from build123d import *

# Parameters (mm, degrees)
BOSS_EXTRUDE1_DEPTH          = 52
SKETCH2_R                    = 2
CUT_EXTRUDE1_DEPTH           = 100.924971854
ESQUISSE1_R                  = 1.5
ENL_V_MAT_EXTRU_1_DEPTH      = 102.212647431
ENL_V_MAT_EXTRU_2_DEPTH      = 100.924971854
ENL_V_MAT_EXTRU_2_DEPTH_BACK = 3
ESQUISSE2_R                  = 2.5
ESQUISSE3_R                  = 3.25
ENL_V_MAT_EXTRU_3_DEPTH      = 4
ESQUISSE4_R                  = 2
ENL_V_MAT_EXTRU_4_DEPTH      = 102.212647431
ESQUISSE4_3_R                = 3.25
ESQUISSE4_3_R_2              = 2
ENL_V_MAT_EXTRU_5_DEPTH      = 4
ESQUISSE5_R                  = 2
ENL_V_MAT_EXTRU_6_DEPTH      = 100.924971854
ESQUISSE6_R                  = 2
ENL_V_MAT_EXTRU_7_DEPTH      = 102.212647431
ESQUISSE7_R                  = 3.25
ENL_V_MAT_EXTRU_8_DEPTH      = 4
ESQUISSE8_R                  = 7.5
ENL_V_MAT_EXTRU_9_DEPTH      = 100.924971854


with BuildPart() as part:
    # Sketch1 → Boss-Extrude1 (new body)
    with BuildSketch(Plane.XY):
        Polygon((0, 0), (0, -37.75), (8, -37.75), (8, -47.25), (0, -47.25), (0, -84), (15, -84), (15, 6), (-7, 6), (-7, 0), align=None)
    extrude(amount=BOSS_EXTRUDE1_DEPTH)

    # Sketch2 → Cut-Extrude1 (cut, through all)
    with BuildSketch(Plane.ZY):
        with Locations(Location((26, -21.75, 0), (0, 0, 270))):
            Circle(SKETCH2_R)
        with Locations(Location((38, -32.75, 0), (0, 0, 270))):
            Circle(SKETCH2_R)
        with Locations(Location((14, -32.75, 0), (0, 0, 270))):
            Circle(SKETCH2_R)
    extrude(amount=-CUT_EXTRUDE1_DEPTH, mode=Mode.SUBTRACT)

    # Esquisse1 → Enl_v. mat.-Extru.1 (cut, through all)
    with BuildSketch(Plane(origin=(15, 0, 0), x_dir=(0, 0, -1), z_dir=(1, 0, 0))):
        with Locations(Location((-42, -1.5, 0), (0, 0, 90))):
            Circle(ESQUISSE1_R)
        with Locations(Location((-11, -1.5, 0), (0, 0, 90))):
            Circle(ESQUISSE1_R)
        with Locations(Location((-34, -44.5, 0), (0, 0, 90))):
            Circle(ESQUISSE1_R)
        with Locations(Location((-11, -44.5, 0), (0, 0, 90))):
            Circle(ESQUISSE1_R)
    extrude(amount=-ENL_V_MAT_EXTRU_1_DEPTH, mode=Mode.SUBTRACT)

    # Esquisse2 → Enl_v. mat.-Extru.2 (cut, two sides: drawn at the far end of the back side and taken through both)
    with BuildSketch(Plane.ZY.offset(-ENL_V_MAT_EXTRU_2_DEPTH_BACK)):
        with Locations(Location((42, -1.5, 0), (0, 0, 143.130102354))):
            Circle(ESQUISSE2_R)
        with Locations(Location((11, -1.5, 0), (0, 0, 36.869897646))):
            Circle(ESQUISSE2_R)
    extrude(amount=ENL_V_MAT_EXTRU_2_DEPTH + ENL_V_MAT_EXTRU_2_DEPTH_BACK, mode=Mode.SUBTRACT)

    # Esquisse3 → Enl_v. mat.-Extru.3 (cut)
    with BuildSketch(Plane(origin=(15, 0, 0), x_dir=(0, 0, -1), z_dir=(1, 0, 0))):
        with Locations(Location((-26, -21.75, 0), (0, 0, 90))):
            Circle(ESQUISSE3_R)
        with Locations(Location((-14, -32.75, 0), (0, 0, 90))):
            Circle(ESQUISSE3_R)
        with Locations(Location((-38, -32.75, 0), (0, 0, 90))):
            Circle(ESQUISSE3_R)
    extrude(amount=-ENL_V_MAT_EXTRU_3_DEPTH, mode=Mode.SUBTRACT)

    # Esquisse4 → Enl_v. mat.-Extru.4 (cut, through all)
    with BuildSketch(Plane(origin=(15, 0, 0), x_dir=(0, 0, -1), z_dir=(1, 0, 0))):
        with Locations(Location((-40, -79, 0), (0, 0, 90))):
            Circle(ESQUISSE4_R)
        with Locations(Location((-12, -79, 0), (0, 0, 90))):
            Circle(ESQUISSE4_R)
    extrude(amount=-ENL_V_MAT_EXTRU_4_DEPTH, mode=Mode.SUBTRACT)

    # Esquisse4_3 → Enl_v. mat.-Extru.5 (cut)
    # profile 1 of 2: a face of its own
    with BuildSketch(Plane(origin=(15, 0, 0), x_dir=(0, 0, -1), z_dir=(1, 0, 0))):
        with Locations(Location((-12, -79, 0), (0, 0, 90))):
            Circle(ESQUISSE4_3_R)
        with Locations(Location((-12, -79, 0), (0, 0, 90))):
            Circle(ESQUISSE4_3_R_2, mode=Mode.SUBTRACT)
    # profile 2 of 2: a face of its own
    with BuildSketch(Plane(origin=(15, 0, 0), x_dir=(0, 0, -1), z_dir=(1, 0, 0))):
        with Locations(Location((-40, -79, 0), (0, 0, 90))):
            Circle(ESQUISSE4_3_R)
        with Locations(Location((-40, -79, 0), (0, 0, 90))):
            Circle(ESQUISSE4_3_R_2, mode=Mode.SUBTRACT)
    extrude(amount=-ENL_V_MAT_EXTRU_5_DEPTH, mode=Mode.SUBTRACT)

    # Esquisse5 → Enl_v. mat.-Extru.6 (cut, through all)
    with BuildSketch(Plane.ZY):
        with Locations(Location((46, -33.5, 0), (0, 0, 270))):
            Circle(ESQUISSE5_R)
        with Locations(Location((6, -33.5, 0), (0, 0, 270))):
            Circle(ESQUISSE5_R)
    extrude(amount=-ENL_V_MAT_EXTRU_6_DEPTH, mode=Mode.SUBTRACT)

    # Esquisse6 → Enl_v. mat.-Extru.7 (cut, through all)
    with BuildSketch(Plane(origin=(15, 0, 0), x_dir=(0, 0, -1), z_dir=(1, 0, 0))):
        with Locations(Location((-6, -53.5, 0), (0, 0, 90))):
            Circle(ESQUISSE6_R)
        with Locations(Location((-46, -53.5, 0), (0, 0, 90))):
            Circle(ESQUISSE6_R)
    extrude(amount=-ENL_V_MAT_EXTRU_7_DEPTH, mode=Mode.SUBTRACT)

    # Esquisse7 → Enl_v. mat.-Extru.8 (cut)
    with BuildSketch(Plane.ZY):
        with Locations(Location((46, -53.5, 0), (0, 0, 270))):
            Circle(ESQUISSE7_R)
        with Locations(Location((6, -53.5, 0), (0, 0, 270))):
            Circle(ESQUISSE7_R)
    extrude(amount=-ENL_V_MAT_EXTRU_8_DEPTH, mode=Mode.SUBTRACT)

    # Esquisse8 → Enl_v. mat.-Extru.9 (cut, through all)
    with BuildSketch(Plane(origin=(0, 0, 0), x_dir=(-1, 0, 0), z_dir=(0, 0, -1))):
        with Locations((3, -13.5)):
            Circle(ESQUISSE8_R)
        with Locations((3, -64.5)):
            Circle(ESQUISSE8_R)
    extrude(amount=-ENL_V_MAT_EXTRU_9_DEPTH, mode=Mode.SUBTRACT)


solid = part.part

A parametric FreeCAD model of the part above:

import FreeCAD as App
import Part
import Sketcher
Q = App.Units.Quantity


def add_polygon(sketch, points):
    """Adds a closed chain of lines whose ends are joined by coincident constraints."""
    first, n = sketch.GeometryCount, len(points)
    for a, b in zip(points, points[1:] + points[:1]):
        sketch.addGeometry(Part.LineSegment(App.Vector(*a, 0), App.Vector(*b, 0)), False)
    for i in range(n):
        sketch.addConstraint(Sketcher.Constraint("Coincident", first + i, 2, first + (i + 1) % n, 1))

doc = App.newDocument("Part")
body = doc.addObject("PartDesign::Body", "Body")

sketch1 = body.newObject("Sketcher::SketchObject", "Sketch")
sketch1.AttachmentSupport = (doc.getObject("XY_Plane"), [""])
sketch1.MapMode = "FlatFace"
add_polygon(sketch1, [(0, 0), (0, -38), (8, -38), (8, -47), (0, -47), (0, -84), (15, -84), (15, 6), (-7, 6), (-7, 0)])
sketch1.addConstraint(Sketcher.Constraint("Vertical", 0))
sketch1.addConstraint(Sketcher.Constraint("Horizontal", 1))
sketch1.addConstraint(Sketcher.Constraint("Vertical", 2))
sketch1.addConstraint(Sketcher.Constraint("Horizontal", 3))
sketch1.addConstraint(Sketcher.Constraint("Vertical", 4))
sketch1.addConstraint(Sketcher.Constraint("Horizontal", 5))
sketch1.addConstraint(Sketcher.Constraint("Vertical", 6))
sketch1.addConstraint(Sketcher.Constraint("Horizontal", 7))
sketch1.addConstraint(Sketcher.Constraint("Vertical", 8))
sketch1.addConstraint(Sketcher.Constraint("Horizontal", 9))
sketch1.addConstraint(Sketcher.Constraint("Coincident", 9, 2, -1, 1))
sketch1.addConstraint(Sketcher.Constraint("PointOnObject", 3, 2, -2))
sketch1.addConstraint(Sketcher.Constraint("DistanceX", 1, 1, 1, 2, Q("8 mm")))
sketch1.addConstraint(Sketcher.Constraint("DistanceX", 5, 1, 5, 2, Q("15 mm")))
sketch1.addConstraint(Sketcher.Constraint("DistanceX", 7, 2, 7, 1, Q("22 mm")))
sketch1.addConstraint(Sketcher.Constraint("DistanceY", 6, 1, 6, 2, Q("90 mm")))
sketch1.addConstraint(Sketcher.Constraint("DistanceY", 8, 2, 8, 1, Q("6 mm")))
sketch1.addConstraint(Sketcher.Constraint("DistanceY", 2, 2, 2, 1, Q("9.5 mm")))
sketch1.addConstraint(Sketcher.Constraint("DistanceY", 0, 2, 0, 1, Q("37.75 mm")))
pad1 = body.newObject("PartDesign::Pad", "Pad")
pad1.Profile = sketch1
pad1.Length = 52

sketch2 = body.newObject("Sketcher::SketchObject", "Sketch001")
sketch2.AttachmentSupport = (doc.getObject("YZ_Plane"), [""])
sketch2.MapMode = "FlatFace"
sketch2.addGeometry(Part.Circle(App.Vector(-21.8, 26, 0), App.Vector(0, 0, 1), 2), False)
sketch2.addGeometry(Part.Circle(App.Vector(-32.8, 38, 0), App.Vector(0, 0, 1), 2), False)
sketch2.addGeometry(Part.Circle(App.Vector(-32.8, 14, 0), App.Vector(0, 0, 1), 2), False)
sketch2.addConstraint(Sketcher.Constraint("Equal", 0, 1))
sketch2.addConstraint(Sketcher.Constraint("Equal", 1, 2))
sketch2.addConstraint(Sketcher.Constraint("Vertical", 1, 3, 2, 3))
sketch2.addConstraint(Sketcher.Constraint("Diameter", 0, Q("4 mm")))
sketch2.addConstraint(Sketcher.Constraint("DistanceY", -1, 1, 0, 3, Q("26 mm")))
sketch2.addConstraint(Sketcher.Constraint("DistanceY", -1, 1, 1, 3, Q("38 mm")))
sketch2.addConstraint(Sketcher.Constraint("DistanceY", -1, 1, 2, 3, Q("14 mm")))
sketch2.addConstraint(Sketcher.Constraint("DistanceX", 1, 3, 0, 3, Q("11 mm")))
sketch2.addConstraint(Sketcher.Constraint("DistanceX", 0, 3, -1, 1, Q("21.75 mm")))
pocket1 = body.newObject("PartDesign::Pocket", "Pocket")
pocket1.Profile = sketch2
pocket1.Type = "ThroughAll"
pocket1.Reversed = True

sketch3 = body.newObject("Sketcher::SketchObject", "Sketch002")
sketch3.AttachmentSupport = (doc.getObject("YZ_Plane"), [""])
sketch3.MapMode = "FlatFace"
sketch3.AttachmentOffset = App.Placement(App.Vector(0, 0, 15), App.Rotation())
sketch3.addGeometry(Part.Circle(App.Vector(-1.5, 42, 0), App.Vector(0, 0, 1), 1.5), False)
sketch3.addGeometry(Part.Circle(App.Vector(-1.5, 11, 0), App.Vector(0, 0, 1), 1.5), False)
sketch3.addGeometry(Part.Circle(App.Vector(-44.5, 34, 0), App.Vector(0, 0, 1), 1.5), False)
sketch3.addGeometry(Part.Circle(App.Vector(-44.5, 11, 0), App.Vector(0, 0, 1), 1.5), False)
sketch3.addConstraint(Sketcher.Constraint("Equal", 0, 1))
sketch3.addConstraint(Sketcher.Constraint("Equal", 1, 2))
sketch3.addConstraint(Sketcher.Constraint("Equal", 2, 3))
sketch3.addConstraint(Sketcher.Constraint("Horizontal", 1, 3, 3, 3))
sketch3.addConstraint(Sketcher.Constraint("Vertical", 0, 3, 1, 3))
sketch3.addConstraint(Sketcher.Constraint("Vertical", 2, 3, 3, 3))
sketch3.addConstraint(Sketcher.Constraint("Diameter", 0, Q("3 mm")))
sketch3.addConstraint(Sketcher.Constraint("DistanceY", -1, 1, 0, 3, Q("42 mm")))
sketch3.addConstraint(Sketcher.Constraint("DistanceY", -1, 1, 1, 3, Q("11 mm")))
sketch3.addConstraint(Sketcher.Constraint("DistanceY", -1, 1, 2, 3, Q("34 mm")))
sketch3.addConstraint(Sketcher.Constraint("DistanceX", 2, 3, 0, 3, Q("43 mm")))
sketch3.addConstraint(Sketcher.Constraint("DistanceX", 0, 3, -1, 1, Q("1.5 mm")))
pocket2 = body.newObject("PartDesign::Pocket", "Pocket001")
pocket2.Profile = sketch3
pocket2.Type = "ThroughAll"

sketch4 = body.newObject("Sketcher::SketchObject", "Sketch003")
sketch4.AttachmentSupport = (doc.getObject("YZ_Plane"), [""])
sketch4.MapMode = "FlatFace"
sketch4.addGeometry(Part.Circle(App.Vector(-1.5, 42, 0), App.Vector(0, 0, 1), 2.5), False)
sketch4.addGeometry(Part.Circle(App.Vector(-1.5, 11, 0), App.Vector(0, 0, 1), 2.5), False)
sketch4.addConstraint(Sketcher.Constraint("Equal", 0, 1))
sketch4.addConstraint(Sketcher.Constraint("Vertical", 0, 3, 1, 3))
sketch4.addConstraint(Sketcher.Constraint("Diameter", 0, Q("5 mm")))
sketch4.addConstraint(Sketcher.Constraint("DistanceY", -1, 1, 0, 3, Q("42 mm")))
sketch4.addConstraint(Sketcher.Constraint("DistanceY", -1, 1, 1, 3, Q("11 mm")))
sketch4.addConstraint(Sketcher.Constraint("DistanceX", 0, 3, -1, 1, Q("1.5 mm")))
pocket3 = body.newObject("PartDesign::Pocket", "Pocket002")
pocket3.Profile = sketch4
pocket3.Type = "TwoLengths"
pocket3.Length = 100.924972
pocket3.Length2 = 3

sketch5 = body.newObject("Sketcher::SketchObject", "Sketch004")
sketch5.AttachmentSupport = (doc.getObject("YZ_Plane"), [""])
sketch5.MapMode = "FlatFace"
sketch5.AttachmentOffset = App.Placement(App.Vector(0, 0, 15), App.Rotation())
sketch5.addGeometry(Part.Circle(App.Vector(-21.8, 26, 0), App.Vector(0, 0, 1), 3.2), False)
sketch5.addGeometry(Part.Circle(App.Vector(-32.8, 14, 0), App.Vector(0, 0, 1), 3.2), False)
sketch5.addGeometry(Part.Circle(App.Vector(-32.8, 38, 0), App.Vector(0, 0, 1), 3.2), False)
sketch5.addConstraint(Sketcher.Constraint("Equal", 0, 1))
sketch5.addConstraint(Sketcher.Constraint("Equal", 1, 2))
sketch5.addConstraint(Sketcher.Constraint("Vertical", 1, 3, 2, 3))
sketch5.addConstraint(Sketcher.Constraint("Diameter", 0, Q("6.5 mm")))
sketch5.addConstraint(Sketcher.Constraint("DistanceY", -1, 1, 0, 3, Q("26 mm")))
sketch5.addConstraint(Sketcher.Constraint("DistanceY", -1, 1, 1, 3, Q("14 mm")))
sketch5.addConstraint(Sketcher.Constraint("DistanceY", -1, 1, 2, 3, Q("38 mm")))
sketch5.addConstraint(Sketcher.Constraint("DistanceX", 1, 3, 0, 3, Q("11 mm")))
sketch5.addConstraint(Sketcher.Constraint("DistanceX", 0, 3, -1, 1, Q("21.75 mm")))
pocket4 = body.newObject("PartDesign::Pocket", "Pocket003")
pocket4.Profile = sketch5
pocket4.Length = 4

sketch6 = body.newObject("Sketcher::SketchObject", "Sketch005")
sketch6.AttachmentSupport = (doc.getObject("YZ_Plane"), [""])
sketch6.MapMode = "FlatFace"
sketch6.AttachmentOffset = App.Placement(App.Vector(0, 0, 15), App.Rotation())
sketch6.addGeometry(Part.Circle(App.Vector(-79, 40, 0), App.Vector(0, 0, 1), 2), False)
sketch6.addGeometry(Part.Circle(App.Vector(-79, 12, 0), App.Vector(0, 0, 1), 2), False)
sketch6.addConstraint(Sketcher.Constraint("Equal", 0, 1))
sketch6.addConstraint(Sketcher.Constraint("Vertical", 0, 3, 1, 3))
sketch6.addConstraint(Sketcher.Constraint("Diameter", 0, Q("4 mm")))
sketch6.addConstraint(Sketcher.Constraint("DistanceX", 0, 3, -1, 1, Q("79 mm")))
sketch6.addConstraint(Sketcher.Constraint("DistanceY", -1, 1, 0, 3, Q("40 mm")))
sketch6.addConstraint(Sketcher.Constraint("DistanceY", -1, 1, 1, 3, Q("12 mm")))
pocket5 = body.newObject("PartDesign::Pocket", "Pocket004")
pocket5.Profile = sketch6
pocket5.Type = "ThroughAll"

sketch7 = body.newObject("Sketcher::SketchObject", "Sketch006")
sketch7.AttachmentSupport = (doc.getObject("YZ_Plane"), [""])
sketch7.MapMode = "FlatFace"
sketch7.AttachmentOffset = App.Placement(App.Vector(0, 0, 15), App.Rotation())
sketch7.addGeometry(Part.Circle(App.Vector(-79, 12, 0), App.Vector(0, 0, 1), 3.2), False)
sketch7.addGeometry(Part.Circle(App.Vector(-79, 12, 0), App.Vector(0, 0, 1), 2), False)
sketch7.addGeometry(Part.Circle(App.Vector(-79, 40, 0), App.Vector(0, 0, 1), 3.2), False)
sketch7.addGeometry(Part.Circle(App.Vector(-79, 40, 0), App.Vector(0, 0, 1), 2), False)
sketch7.addConstraint(Sketcher.Constraint("Coincident", 1, 3, 0, 3))
sketch7.addConstraint(Sketcher.Constraint("Coincident", 3, 3, 2, 3))
sketch7.addConstraint(Sketcher.Constraint("Equal", 0, 2))
sketch7.addConstraint(Sketcher.Constraint("Equal", 1, 3))
sketch7.addConstraint(Sketcher.Constraint("Vertical", 1, 3, 2, 3))
sketch7.addConstraint(Sketcher.Constraint("Diameter", 1, Q("4 mm")))
sketch7.addConstraint(Sketcher.Constraint("Diameter", 0, Q("6.5 mm")))
sketch7.addConstraint(Sketcher.Constraint("DistanceX", 0, 3, -1, 1, Q("79 mm")))
sketch7.addConstraint(Sketcher.Constraint("DistanceY", -1, 1, 0, 3, Q("12 mm")))
sketch7.addConstraint(Sketcher.Constraint("DistanceY", -1, 1, 2, 3, Q("40 mm")))
pocket6 = body.newObject("PartDesign::Pocket", "Pocket005")
pocket6.Profile = sketch7
pocket6.Length = 4

sketch8 = body.newObject("Sketcher::SketchObject", "Sketch007")
sketch8.AttachmentSupport = (doc.getObject("YZ_Plane"), [""])
sketch8.MapMode = "FlatFace"
sketch8.addGeometry(Part.Circle(App.Vector(-33.5, 46, 0), App.Vector(0, 0, 1), 2), False)
sketch8.addGeometry(Part.Circle(App.Vector(-33.5, 6, 0), App.Vector(0, 0, 1), 2), False)
sketch8.addConstraint(Sketcher.Constraint("Equal", 0, 1))
sketch8.addConstraint(Sketcher.Constraint("Vertical", 0, 3, 1, 3))
sketch8.addConstraint(Sketcher.Constraint("Diameter", 0, Q("4 mm")))
sketch8.addConstraint(Sketcher.Constraint("DistanceY", -1, 1, 0, 3, Q("46 mm")))
sketch8.addConstraint(Sketcher.Constraint("DistanceY", -1, 1, 1, 3, Q("6 mm")))
sketch8.addConstraint(Sketcher.Constraint("DistanceX", 0, 3, -1, 1, Q("33.5 mm")))
pocket7 = body.newObject("PartDesign::Pocket", "Pocket006")
pocket7.Profile = sketch8
pocket7.Type = "ThroughAll"
pocket7.Reversed = True

sketch9 = body.newObject("Sketcher::SketchObject", "Sketch008")
sketch9.AttachmentSupport = (doc.getObject("YZ_Plane"), [""])
sketch9.MapMode = "FlatFace"
sketch9.AttachmentOffset = App.Placement(App.Vector(0, 0, 15), App.Rotation())
sketch9.addGeometry(Part.Circle(App.Vector(-53.5, 6, 0), App.Vector(0, 0, 1), 2), False)
sketch9.addGeometry(Part.Circle(App.Vector(-53.5, 46, 0), App.Vector(0, 0, 1), 2), False)
sketch9.addConstraint(Sketcher.Constraint("Equal", 0, 1))
sketch9.addConstraint(Sketcher.Constraint("Vertical", 0, 3, 1, 3))
sketch9.addConstraint(Sketcher.Constraint("Diameter", 0, Q("4 mm")))
sketch9.addConstraint(Sketcher.Constraint("DistanceY", -1, 1, 0, 3, Q("6 mm")))
sketch9.addConstraint(Sketcher.Constraint("DistanceY", -1, 1, 1, 3, Q("46 mm")))
sketch9.addConstraint(Sketcher.Constraint("DistanceX", 0, 3, -1, 1, Q("53.5 mm")))
pocket8 = body.newObject("PartDesign::Pocket", "Pocket007")
pocket8.Profile = sketch9
pocket8.Type = "ThroughAll"

sketch10 = body.newObject("Sketcher::SketchObject", "Sketch009")
sketch10.AttachmentSupport = (doc.getObject("YZ_Plane"), [""])
sketch10.MapMode = "FlatFace"
sketch10.addGeometry(Part.Circle(App.Vector(-53.5, 46, 0), App.Vector(0, 0, 1), 3.2), False)
sketch10.addGeometry(Part.Circle(App.Vector(-53.5, 6, 0), App.Vector(0, 0, 1), 3.2), False)
sketch10.addConstraint(Sketcher.Constraint("Equal", 0, 1))
sketch10.addConstraint(Sketcher.Constraint("Vertical", 0, 3, 1, 3))
sketch10.addConstraint(Sketcher.Constraint("Diameter", 0, Q("6.5 mm")))
sketch10.addConstraint(Sketcher.Constraint("DistanceY", -1, 1, 0, 3, Q("46 mm")))
sketch10.addConstraint(Sketcher.Constraint("DistanceY", -1, 1, 1, 3, Q("6 mm")))
sketch10.addConstraint(Sketcher.Constraint("DistanceX", 0, 3, -1, 1, Q("53.5 mm")))
pocket9 = body.newObject("PartDesign::Pocket", "Pocket008")
pocket9.Profile = sketch10
pocket9.Length = 4
pocket9.Reversed = True

sketch11 = body.newObject("Sketcher::SketchObject", "Sketch010")
sketch11.AttachmentSupport = (doc.getObject("XY_Plane"), [""])
sketch11.MapMode = "FlatFace"
sketch11.addGeometry(Part.Circle(App.Vector(-3, -14, 0), App.Vector(0, 0, 1), 8), False)
sketch11.addGeometry(Part.Circle(App.Vector(-3, -64, 0), App.Vector(0, 0, 1), 8), False)
sketch11.addConstraint(Sketcher.Constraint("Equal", 0, 1))
sketch11.addConstraint(Sketcher.Constraint("Vertical", 0, 3, 1, 3))
sketch11.addConstraint(Sketcher.Constraint("Diameter", 0, Q("15 mm")))
sketch11.addConstraint(Sketcher.Constraint("DistanceX", 0, 3, -1, 1, Q("3 mm")))
sketch11.addConstraint(Sketcher.Constraint("DistanceY", 1, 3, 0, 3, Q("51 mm")))
sketch11.addConstraint(Sketcher.Constraint("DistanceY", 0, 3, -1, 1, Q("13.5 mm")))
pocket10 = body.newObject("PartDesign::Pocket", "Pocket009")
pocket10.Profile = sketch11
pocket10.Type = "ThroughAll"
pocket10.Reversed = True

doc.recompute()
